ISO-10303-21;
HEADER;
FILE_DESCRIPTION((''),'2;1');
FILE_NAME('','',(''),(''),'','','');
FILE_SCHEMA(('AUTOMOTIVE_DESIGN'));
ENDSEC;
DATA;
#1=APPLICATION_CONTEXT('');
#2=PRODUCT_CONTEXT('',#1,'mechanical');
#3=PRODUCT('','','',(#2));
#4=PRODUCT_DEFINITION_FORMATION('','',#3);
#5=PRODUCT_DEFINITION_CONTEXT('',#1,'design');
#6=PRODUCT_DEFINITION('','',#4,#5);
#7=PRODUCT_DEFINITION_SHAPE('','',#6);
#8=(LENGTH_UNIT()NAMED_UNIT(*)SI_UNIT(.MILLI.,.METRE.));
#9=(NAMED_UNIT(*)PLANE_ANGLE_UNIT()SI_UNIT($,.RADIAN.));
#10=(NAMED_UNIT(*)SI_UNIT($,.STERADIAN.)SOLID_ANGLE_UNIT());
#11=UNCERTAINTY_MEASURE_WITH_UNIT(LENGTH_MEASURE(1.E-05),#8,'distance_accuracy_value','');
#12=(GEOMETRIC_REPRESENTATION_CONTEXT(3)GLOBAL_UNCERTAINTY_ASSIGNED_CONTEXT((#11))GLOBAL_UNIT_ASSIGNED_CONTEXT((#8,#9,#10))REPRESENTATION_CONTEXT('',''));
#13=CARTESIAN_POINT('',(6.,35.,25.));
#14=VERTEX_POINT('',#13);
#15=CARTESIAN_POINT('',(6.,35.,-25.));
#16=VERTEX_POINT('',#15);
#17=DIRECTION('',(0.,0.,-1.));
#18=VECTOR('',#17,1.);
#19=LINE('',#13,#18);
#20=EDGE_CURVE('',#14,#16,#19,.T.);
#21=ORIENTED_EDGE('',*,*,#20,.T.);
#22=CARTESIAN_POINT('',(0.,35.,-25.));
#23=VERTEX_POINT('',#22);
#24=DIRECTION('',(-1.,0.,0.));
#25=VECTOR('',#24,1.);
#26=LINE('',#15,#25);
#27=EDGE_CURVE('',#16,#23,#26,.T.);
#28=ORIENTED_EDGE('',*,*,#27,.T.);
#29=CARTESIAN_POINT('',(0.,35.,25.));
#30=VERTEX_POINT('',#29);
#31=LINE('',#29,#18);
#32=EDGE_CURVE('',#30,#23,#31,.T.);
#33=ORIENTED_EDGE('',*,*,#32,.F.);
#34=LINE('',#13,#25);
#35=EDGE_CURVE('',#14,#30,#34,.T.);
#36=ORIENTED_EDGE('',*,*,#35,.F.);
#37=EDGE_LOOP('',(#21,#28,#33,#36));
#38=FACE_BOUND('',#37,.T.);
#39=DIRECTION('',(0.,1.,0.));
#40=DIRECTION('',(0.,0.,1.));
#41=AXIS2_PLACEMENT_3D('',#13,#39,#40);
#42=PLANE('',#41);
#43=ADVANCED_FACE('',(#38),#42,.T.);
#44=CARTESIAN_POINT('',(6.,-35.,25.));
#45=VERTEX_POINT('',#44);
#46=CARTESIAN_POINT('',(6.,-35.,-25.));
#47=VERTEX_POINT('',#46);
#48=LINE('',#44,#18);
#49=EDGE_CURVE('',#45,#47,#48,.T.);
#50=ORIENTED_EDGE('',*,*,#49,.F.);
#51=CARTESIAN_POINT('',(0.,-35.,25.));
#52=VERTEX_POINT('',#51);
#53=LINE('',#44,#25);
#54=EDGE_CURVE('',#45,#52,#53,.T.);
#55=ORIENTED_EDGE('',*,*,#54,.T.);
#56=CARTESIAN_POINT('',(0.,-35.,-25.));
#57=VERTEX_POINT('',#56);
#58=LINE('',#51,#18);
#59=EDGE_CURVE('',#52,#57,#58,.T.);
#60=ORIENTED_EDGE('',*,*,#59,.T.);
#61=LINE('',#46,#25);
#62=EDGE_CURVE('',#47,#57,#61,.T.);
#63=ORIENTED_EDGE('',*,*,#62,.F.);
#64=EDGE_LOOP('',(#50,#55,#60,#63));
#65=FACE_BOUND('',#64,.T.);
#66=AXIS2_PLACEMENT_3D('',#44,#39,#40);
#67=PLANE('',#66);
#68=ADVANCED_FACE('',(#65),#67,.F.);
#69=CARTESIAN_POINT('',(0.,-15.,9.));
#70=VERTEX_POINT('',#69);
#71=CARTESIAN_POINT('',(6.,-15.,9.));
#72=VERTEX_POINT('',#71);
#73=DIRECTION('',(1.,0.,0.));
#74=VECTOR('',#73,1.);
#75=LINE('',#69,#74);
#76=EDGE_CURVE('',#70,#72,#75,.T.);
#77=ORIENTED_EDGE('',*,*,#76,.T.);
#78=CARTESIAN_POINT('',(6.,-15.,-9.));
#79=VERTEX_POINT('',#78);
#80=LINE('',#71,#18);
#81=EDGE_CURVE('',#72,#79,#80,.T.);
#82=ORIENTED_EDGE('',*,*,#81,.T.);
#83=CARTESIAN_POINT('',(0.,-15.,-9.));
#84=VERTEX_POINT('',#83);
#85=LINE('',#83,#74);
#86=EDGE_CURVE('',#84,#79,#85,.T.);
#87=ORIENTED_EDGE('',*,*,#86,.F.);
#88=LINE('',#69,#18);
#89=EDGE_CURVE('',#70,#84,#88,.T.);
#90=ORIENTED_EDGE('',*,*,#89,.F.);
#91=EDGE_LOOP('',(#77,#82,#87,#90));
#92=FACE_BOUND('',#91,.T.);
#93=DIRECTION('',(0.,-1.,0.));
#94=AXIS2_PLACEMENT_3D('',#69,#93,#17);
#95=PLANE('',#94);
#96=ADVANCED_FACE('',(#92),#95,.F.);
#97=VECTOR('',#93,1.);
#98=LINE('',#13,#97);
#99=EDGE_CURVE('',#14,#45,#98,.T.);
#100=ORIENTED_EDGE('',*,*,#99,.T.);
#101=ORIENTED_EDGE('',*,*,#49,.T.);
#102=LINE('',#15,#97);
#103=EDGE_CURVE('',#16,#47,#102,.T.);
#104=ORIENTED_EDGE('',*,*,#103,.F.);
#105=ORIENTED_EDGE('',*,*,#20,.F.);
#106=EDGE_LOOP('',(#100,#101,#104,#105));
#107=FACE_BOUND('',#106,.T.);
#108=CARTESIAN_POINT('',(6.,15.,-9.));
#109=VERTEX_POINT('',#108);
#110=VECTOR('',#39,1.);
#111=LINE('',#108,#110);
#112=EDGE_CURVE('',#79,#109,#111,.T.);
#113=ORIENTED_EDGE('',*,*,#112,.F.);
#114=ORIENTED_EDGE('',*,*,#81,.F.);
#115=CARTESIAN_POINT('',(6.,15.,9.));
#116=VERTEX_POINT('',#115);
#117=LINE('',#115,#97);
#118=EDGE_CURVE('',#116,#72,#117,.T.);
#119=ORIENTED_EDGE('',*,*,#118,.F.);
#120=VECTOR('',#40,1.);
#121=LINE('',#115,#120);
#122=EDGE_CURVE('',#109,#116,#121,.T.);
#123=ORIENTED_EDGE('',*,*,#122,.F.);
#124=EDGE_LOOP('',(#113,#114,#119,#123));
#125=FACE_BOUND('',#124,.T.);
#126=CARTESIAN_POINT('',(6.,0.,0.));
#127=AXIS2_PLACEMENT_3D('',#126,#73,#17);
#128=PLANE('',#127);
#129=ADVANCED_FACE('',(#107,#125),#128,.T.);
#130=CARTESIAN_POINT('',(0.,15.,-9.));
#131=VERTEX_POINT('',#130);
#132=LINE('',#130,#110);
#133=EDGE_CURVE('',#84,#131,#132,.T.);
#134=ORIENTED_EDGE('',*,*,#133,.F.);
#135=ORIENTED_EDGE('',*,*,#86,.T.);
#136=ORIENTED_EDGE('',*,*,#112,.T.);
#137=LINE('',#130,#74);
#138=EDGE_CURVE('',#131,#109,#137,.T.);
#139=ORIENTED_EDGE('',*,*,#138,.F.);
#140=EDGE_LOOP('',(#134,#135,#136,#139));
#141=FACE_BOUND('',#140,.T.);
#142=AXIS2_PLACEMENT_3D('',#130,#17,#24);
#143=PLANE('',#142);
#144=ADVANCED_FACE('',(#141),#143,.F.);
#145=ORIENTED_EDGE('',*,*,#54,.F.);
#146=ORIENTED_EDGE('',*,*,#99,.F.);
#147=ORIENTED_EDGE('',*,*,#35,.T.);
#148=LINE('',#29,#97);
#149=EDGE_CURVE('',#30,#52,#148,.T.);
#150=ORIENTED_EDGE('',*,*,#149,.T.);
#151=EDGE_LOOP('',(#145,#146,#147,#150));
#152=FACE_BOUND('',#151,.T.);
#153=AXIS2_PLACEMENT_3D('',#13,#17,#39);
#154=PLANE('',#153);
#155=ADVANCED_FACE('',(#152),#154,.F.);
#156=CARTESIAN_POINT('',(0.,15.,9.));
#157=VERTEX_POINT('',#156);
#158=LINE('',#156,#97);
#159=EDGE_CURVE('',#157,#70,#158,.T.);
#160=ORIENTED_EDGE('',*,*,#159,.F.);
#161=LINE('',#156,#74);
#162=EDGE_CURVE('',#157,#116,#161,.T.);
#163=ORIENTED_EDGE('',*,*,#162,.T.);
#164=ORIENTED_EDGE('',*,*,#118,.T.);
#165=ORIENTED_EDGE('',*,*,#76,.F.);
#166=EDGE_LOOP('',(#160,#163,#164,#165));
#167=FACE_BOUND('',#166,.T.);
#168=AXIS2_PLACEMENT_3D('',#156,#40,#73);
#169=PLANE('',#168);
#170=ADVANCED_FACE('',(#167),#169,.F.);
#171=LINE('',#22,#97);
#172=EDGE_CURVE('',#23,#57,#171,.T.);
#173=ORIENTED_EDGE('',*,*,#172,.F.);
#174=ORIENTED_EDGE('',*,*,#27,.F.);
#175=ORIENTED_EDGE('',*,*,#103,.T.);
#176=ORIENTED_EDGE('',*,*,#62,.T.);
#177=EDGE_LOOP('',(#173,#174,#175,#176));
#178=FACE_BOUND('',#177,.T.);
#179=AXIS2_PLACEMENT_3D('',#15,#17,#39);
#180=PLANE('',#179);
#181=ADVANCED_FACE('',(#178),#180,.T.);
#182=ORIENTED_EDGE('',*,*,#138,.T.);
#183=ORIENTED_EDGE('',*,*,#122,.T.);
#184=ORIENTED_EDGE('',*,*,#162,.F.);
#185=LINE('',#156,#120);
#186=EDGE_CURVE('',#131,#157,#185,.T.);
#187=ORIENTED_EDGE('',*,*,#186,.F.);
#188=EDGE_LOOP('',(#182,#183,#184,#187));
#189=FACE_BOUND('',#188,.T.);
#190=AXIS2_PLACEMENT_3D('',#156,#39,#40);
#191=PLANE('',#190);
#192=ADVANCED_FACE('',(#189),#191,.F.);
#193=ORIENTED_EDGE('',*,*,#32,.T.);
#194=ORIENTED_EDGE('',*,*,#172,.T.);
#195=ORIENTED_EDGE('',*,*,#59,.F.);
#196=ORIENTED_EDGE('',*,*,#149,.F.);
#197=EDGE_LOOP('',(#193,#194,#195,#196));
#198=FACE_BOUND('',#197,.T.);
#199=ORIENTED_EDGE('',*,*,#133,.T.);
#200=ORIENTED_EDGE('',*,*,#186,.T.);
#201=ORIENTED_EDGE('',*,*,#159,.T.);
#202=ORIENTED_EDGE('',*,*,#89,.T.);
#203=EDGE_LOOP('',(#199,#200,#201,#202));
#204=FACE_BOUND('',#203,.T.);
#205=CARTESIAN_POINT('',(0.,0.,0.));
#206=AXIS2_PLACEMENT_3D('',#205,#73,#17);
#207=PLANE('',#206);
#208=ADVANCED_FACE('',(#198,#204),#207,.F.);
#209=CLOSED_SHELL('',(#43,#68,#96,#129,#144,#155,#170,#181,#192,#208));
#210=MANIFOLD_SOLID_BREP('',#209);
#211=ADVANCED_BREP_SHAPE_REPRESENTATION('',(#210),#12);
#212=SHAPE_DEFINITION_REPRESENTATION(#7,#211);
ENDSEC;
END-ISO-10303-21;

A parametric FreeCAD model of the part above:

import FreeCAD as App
import Part
import Sketcher

V = App.Vector

doc = App.newDocument("Part")
body = doc.addObject("PartDesign::Body", "Body")

# Sketch on YZ plane
sketch1 = body.newObject("Sketcher::SketchObject", "Sketch")
sketch1.AttachmentSupport = (doc.getObject("YZ_Plane"), [""])
sketch1.MapMode = "FlatFace"
sketch1.addGeometry([
    Part.LineSegment(V(35, 25, 0), V(-35, 25, 0)),
    Part.LineSegment(V(-35, 25, 0), V(-35, -25, 0)),
    Part.LineSegment(V(-35, -25, 0), V(35, -25, 0)),
    Part.LineSegment(V(35, -25, 0), V(35, 25, 0)),
], False)
sketch1.addConstraint([
    Sketcher.Constraint("Coincident", 0, 2, 1, 1),
    Sketcher.Constraint("Coincident", 1, 2, 2, 1),
    Sketcher.Constraint("Coincident", 2, 2, 3, 1),
    Sketcher.Constraint("Coincident", 3, 2, 0, 1),
    Sketcher.Constraint("Horizontal", 0),
    Sketcher.Constraint("Vertical", 1),
    Sketcher.Constraint("Horizontal", 2),
    Sketcher.Constraint("Vertical", 3),
    Sketcher.Constraint("Symmetric", 0, 2, 2, 2, -1, 1),
    Sketcher.Constraint("DistanceX", 0, 2, 0, 1, 70.0),
    Sketcher.Constraint("DistanceY", 1, 2, 1, 1, 50.0),
])
pad1 = body.newObject("PartDesign::Pad", "Pad")
pad1.Profile = sketch1
pad1.Length = 6

# Sketch on YZ plane
sketch2 = body.newObject("Sketcher::SketchObject", "Sketch001")
sketch2.AttachmentSupport = (doc.getObject("YZ_Plane"), [""])
sketch2.MapMode = "FlatFace"
sketch2.AttachmentOffset = App.Placement(V(0, 0, 6), App.Rotation())
sketch2.addGeometry([
    Part.LineSegment(V(15, 9, 0), V(-15, 9, 0)),
    Part.LineSegment(V(-15, 9, 0), V(-15, -9, 0)),
    Part.LineSegment(V(-15, -9, 0), V(15, -9, 0)),
    Part.LineSegment(V(15, -9, 0), V(15, 9, 0)),
], False)
sketch2.addConstraint([
    Sketcher.Constraint("Coincident", 0, 2, 1, 1),
    Sketcher.Constraint("Coincident", 1, 2, 2, 1),
    Sketcher.Constraint("Coincident", 2, 2, 3, 1),
    Sketcher.Constraint("Coincident", 3, 2, 0, 1),
    Sketcher.Constraint("Horizontal", 0),
    Sketcher.Constraint("Vertical", 1),
    Sketcher.Constraint("Horizontal", 2),
    Sketcher.Constraint("Vertical", 3),
    Sketcher.Constraint("Symmetric", 0, 2, 2, 2, -1, 1),
    Sketcher.Constraint("DistanceX", 0, 2, 0, 1, 30.0),
    Sketcher.Constraint("DistanceY", 1, 2, 1, 1, 18.0),
])
pocket1 = body.newObject("PartDesign::Pocket", "Pocket")
pocket1.Profile = sketch2
pocket1.Length = 6

doc.recompute()
